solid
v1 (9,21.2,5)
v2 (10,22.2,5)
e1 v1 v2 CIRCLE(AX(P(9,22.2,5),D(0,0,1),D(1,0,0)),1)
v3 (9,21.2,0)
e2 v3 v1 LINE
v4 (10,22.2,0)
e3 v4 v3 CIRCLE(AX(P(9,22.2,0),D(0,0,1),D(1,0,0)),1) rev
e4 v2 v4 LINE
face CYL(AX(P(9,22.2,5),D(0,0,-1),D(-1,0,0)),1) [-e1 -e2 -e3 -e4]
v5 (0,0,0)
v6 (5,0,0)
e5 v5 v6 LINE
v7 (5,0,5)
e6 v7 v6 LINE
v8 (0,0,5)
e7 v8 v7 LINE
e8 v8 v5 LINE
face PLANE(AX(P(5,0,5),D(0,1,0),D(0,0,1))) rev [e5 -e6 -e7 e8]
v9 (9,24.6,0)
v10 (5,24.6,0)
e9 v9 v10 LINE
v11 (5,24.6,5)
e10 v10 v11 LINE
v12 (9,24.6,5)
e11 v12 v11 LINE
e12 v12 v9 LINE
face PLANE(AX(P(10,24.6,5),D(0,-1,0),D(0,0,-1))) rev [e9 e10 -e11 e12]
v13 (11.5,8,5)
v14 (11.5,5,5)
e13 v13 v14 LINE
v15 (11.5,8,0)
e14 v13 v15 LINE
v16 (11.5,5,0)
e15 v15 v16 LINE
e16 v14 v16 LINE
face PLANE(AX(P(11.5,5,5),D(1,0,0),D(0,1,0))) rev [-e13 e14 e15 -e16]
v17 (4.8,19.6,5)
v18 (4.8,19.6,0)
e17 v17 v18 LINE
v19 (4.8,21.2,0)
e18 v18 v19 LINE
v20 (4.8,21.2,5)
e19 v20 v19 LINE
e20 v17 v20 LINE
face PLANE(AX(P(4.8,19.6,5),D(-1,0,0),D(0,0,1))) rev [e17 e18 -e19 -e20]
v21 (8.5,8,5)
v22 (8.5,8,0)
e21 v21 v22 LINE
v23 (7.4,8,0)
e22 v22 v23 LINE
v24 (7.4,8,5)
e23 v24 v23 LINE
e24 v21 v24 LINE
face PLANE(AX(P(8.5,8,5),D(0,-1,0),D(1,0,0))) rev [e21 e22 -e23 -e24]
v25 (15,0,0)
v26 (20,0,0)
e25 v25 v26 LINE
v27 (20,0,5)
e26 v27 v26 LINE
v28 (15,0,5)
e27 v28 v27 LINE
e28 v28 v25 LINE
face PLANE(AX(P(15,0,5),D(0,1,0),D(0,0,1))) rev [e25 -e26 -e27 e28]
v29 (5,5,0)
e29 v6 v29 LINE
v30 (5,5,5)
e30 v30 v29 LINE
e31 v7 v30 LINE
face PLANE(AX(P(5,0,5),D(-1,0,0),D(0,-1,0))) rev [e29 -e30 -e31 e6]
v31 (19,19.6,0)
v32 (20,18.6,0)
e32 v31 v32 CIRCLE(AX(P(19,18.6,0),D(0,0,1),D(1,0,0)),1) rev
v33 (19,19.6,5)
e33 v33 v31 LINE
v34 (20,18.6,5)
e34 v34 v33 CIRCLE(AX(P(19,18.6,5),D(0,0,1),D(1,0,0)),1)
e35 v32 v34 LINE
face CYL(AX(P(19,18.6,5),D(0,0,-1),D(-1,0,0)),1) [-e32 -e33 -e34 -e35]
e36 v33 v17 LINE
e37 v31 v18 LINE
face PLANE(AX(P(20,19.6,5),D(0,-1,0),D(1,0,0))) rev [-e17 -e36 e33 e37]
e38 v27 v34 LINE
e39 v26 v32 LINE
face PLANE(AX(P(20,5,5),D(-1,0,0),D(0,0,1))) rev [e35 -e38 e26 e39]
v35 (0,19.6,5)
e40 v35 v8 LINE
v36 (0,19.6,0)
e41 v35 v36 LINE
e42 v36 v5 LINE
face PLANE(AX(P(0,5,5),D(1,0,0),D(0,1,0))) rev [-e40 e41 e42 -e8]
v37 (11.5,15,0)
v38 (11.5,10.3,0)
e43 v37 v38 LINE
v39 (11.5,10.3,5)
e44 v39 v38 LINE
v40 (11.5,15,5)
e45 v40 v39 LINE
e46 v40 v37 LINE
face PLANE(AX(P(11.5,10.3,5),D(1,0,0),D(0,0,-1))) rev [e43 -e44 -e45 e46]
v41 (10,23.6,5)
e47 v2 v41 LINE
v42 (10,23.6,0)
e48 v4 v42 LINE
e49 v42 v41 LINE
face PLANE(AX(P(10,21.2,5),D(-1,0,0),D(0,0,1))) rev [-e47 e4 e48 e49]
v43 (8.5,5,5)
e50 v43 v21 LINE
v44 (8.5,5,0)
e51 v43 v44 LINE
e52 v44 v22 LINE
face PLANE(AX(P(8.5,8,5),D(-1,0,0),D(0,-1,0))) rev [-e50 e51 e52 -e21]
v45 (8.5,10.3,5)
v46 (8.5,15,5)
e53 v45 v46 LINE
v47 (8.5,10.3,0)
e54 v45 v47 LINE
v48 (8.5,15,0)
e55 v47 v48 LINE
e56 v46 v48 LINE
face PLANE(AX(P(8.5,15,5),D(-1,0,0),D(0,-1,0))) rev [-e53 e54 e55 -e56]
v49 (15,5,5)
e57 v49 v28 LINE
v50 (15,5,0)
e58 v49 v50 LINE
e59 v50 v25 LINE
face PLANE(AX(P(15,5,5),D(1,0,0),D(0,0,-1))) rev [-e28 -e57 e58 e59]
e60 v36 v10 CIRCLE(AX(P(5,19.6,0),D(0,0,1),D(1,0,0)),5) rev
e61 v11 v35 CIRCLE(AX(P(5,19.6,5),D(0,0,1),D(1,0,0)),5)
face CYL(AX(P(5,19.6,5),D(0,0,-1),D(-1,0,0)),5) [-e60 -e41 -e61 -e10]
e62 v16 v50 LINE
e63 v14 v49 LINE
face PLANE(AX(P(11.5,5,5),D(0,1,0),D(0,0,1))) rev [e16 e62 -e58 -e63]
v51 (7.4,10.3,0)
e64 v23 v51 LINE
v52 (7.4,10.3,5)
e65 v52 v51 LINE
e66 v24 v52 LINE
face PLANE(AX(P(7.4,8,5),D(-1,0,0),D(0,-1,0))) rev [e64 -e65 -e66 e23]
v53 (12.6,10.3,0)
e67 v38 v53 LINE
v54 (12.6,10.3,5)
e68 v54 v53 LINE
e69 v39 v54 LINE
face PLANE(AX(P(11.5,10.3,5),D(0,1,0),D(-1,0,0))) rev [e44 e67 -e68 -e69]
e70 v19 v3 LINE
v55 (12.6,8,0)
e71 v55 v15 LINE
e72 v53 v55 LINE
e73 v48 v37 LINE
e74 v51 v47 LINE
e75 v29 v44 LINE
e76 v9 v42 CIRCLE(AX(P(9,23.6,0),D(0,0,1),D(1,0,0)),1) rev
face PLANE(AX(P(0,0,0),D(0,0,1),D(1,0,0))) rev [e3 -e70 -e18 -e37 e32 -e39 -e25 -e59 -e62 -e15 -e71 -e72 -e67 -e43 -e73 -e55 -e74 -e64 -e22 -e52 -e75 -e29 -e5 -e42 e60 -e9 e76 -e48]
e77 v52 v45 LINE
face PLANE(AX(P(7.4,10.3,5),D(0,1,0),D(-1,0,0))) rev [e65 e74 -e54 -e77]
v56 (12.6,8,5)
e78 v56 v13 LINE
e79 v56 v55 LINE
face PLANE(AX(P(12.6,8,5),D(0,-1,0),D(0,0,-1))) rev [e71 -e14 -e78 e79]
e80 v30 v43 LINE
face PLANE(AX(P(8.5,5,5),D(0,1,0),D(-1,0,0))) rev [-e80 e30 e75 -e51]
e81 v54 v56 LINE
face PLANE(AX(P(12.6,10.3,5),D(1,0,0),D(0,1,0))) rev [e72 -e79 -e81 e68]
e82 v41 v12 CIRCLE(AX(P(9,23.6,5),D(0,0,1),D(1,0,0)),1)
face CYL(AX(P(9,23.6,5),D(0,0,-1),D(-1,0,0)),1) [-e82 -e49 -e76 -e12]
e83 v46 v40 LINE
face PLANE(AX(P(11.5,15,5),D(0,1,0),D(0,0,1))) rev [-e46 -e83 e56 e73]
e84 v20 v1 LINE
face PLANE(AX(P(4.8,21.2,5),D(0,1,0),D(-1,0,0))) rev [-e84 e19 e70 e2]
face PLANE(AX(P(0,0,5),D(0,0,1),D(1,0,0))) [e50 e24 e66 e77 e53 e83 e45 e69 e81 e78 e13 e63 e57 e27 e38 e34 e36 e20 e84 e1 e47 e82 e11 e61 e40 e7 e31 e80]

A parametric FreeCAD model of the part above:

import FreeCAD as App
import Part
import Sketcher

V = App.Vector
Q = App.Units.Quantity


def edges_at(feature, points):
    """Names of the edges that pass closest to the given points."""
    edges = feature.Shape.Edges
    near = lambda p: min(range(len(edges)), key=lambda i: edges[i].distToShape(Part.Vertex(*p))[0])
    return sorted({f"Edge{near(p) + 1}" for p in points})


def add_polygon(sketch, points):
    """Adds a closed chain of lines whose ends are joined by coincident constraints."""
    first, n = sketch.GeometryCount, len(points)
    for a, b in zip(points, points[1:] + points[:1]):
        sketch.addGeometry(Part.LineSegment(App.Vector(*a, 0), App.Vector(*b, 0)), False)
    for i in range(n):
        sketch.addConstraint(Sketcher.Constraint("Coincident", first + i, 2, first + (i + 1) % n, 1))

doc = App.newDocument("Part")
body = doc.addObject("PartDesign::Body", "Body")

# Sketch on XY plane
sketch1 = body.newObject("Sketcher::SketchObject", "Sketch")
sketch1.AttachmentSupport = (doc.getObject("XY_Plane"), [""])
sketch1.MapMode = "FlatFace"
add_polygon(sketch1, [(0, 24.6), (0, 0), (5, 0), (5, 5), (8.5, 5), (8.5, 8), (7.4, 8), (7.4, 10.3), (8.5, 10.3), (8.5, 15), (11.5, 15), (11.5, 10.3), (12.6, 10.3), (12.6, 8), (11.5, 8), (11.5, 5), (15, 5), (15, 0), (20, 0), (20, 19.6), (4.8, 19.6), (4.8, 21.2), (10, 21.2), (10, 24.6)])  # lines 0-23
sketch1.addConstraint([
    Sketcher.Constraint("Vertical", 0),
    Sketcher.Constraint("Horizontal", 1),
    Sketcher.Constraint("Vertical", 2),
    Sketcher.Constraint("Horizontal", 3),
    Sketcher.Constraint("Vertical", 4),
    Sketcher.Constraint("Horizontal", 5),
    Sketcher.Constraint("Vertical", 6),
    Sketcher.Constraint("Horizontal", 7),
    Sketcher.Constraint("Vertical", 8),
    Sketcher.Constraint("Horizontal", 9),
    Sketcher.Constraint("Vertical", 10),
    Sketcher.Constraint("Horizontal", 11),
    Sketcher.Constraint("Vertical", 12),
    Sketcher.Constraint("Horizontal", 13),
    Sketcher.Constraint("Vertical", 14),
    Sketcher.Constraint("Horizontal", 15),
    Sketcher.Constraint("Vertical", 16),
    Sketcher.Constraint("Horizontal", 17),
    Sketcher.Constraint("Vertical", 18),
    Sketcher.Constraint("Horizontal", 19),
    Sketcher.Constraint("Vertical", 20),
    Sketcher.Constraint("Horizontal", 21),
    Sketcher.Constraint("Vertical", 22),
    Sketcher.Constraint("Horizontal", 23),
    Sketcher.Constraint("Coincident", 0, 2, -1, 1),
    Sketcher.Constraint("PointOnObject", 16, 2, -1),
    Sketcher.Constraint("Horizontal", 7, 2, 10, 2),
    Sketcher.Constraint("Horizontal", 5, 2, 12, 2),
    Sketcher.Constraint("Horizontal", 3, 2, 14, 2),
    Sketcher.Constraint("Vertical", 4, 2, 7, 2),
    Sketcher.Constraint("Vertical", 10, 2, 13, 2),
    Sketcher.Constraint("Equal", 7, 11),
    Sketcher.Constraint("Equal", 3, 15),
    Sketcher.Constraint("Equal", 1, 17),
    Sketcher.Constraint("Equal", 17, 2),
    Sketcher.Constraint("Equal", 9, 4),
    Sketcher.Constraint("DistanceX", 1, 1, 1, 2, Q("5 mm")),
    Sketcher.Constraint("DistanceX", 9, 1, 9, 2, Q("3 mm")),
    Sketcher.Constraint("DistanceX", 23, 2, 23, 1, Q("10 mm")),
    Sketcher.Constraint("DistanceX", 3, 1, 3, 2, Q("3.5 mm")),
    Sketcher.Constraint("DistanceX", 5, 2, 5, 1, Q("1.1 mm")),
    Sketcher.Constraint("DistanceX", 19, 2, 19, 1, Q("15.2 mm")),
    Sketcher.Constraint("DistanceY", 0, 2, 0, 1, Q("24.6 mm")),
    Sketcher.Constraint("DistanceY", 6, 1, 6, 2, Q("2.3 mm")),
    Sketcher.Constraint("DistanceY", 8, 1, 8, 2, Q("4.7 mm")),
    Sketcher.Constraint("DistanceY", 18, 1, 18, 2, Q("19.6 mm")),
    Sketcher.Constraint("DistanceY", 20, 1, 20, 2, Q("1.6 mm")),
])
pad1 = body.newObject("PartDesign::Pad", "Pad")
pad1.Profile = sketch1
pad1.Length = 5
doc.recompute()

fillet = body.newObject("PartDesign::Fillet", "Fillet")
fillet.Base = (pad1, edges_at(pad1, [(0, 24.6, 2.5)]))
fillet.Radius = 5
doc.recompute()

fillet2 = body.newObject("PartDesign::Fillet", "Fillet001")
fillet2.Base = (fillet, edges_at(fillet, [(10, 21.2, 2.5), (20, 19.6, 2.5)]))
fillet2.Radius = 1
doc.recompute()

fillet3 = body.newObject("PartDesign::Fillet", "Fillet002")
fillet3.Base = (fillet2, edges_at(fillet2, [(10, 24.6, 2.5)]))
fillet3.Radius = 1

doc.recompute()
